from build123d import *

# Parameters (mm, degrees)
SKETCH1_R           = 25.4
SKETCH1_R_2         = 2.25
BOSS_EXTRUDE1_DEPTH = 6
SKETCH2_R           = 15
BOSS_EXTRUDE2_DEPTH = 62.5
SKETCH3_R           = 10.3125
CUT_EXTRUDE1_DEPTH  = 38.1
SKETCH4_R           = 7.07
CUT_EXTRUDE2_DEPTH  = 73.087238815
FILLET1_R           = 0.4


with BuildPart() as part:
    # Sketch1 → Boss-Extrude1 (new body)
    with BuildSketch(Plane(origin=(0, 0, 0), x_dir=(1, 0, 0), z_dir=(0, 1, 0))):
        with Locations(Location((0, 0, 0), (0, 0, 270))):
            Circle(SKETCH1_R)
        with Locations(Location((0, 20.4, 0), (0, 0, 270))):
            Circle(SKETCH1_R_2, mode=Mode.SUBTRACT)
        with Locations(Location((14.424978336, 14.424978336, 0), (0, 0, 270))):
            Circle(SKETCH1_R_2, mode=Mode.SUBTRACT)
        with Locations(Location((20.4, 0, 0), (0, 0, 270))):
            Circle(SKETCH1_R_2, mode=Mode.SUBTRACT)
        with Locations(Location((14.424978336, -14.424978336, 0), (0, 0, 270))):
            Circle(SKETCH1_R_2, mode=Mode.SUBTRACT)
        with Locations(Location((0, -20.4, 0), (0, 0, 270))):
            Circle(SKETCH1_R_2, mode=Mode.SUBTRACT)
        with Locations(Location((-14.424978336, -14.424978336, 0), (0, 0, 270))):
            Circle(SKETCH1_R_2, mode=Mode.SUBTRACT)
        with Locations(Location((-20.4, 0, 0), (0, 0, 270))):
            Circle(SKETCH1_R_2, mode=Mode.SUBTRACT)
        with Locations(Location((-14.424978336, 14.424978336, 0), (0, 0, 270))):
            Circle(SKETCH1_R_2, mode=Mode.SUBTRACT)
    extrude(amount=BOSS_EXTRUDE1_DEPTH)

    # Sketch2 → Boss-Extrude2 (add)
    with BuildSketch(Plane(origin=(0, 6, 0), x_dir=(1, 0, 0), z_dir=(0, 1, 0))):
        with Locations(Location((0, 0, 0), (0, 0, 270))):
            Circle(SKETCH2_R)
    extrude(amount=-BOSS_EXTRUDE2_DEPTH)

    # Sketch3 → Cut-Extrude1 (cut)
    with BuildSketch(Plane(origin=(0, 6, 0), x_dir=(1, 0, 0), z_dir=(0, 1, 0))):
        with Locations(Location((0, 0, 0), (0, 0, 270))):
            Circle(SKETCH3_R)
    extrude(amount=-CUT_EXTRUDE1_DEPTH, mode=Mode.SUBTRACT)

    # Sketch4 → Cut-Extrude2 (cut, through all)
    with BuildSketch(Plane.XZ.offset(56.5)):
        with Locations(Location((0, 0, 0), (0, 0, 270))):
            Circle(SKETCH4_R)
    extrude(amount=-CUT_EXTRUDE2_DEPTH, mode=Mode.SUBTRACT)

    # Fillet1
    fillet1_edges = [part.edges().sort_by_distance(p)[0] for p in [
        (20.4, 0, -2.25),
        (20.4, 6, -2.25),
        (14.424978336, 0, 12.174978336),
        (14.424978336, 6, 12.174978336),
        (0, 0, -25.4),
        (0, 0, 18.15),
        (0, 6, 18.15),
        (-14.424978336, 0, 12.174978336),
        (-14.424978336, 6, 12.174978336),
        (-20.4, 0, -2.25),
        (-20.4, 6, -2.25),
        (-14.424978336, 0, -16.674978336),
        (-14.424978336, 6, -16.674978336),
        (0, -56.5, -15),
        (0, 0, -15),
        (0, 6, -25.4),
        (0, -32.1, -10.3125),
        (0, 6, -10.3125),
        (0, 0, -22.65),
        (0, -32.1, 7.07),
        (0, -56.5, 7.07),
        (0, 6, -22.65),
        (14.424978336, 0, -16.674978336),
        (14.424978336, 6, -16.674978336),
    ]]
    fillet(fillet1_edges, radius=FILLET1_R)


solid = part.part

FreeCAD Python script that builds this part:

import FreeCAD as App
import Part
import Sketcher


def edges_at(feature, points):
    """Names of the edges that pass closest to the given points."""
    edges = feature.Shape.Edges
    near = lambda p: min(range(len(edges)), key=lambda i: edges[i].distToShape(Part.Vertex(*p))[0])
    return sorted({f"Edge{near(p) + 1}" for p in points})

doc = App.newDocument("Part")
params = doc.addObject("Spreadsheet::Sheet", "Params")
for row, (alias, value) in enumerate([
    ("sketch1_diameter", "50.8 mm"),
    ("sketch1_diameter2", "4.5 mm"),
    ("pad1_length", "6 mm"),
    ("sketch2_diameter", "30 mm"),
    ("pad2_length", "62.5 mm"),
    ("pocket1_length", "38.1 mm"),
    ("sketch4_diameter", "14.14 mm"),
    ("fillet_radius", "0.4 mm"),
], start=1):
    params.set(f"A{row}", alias)
    params.set(f"B{row}", "=" + value)
    params.setAlias(f"B{row}", alias)

body = doc.addObject("PartDesign::Body", "Body")

# Sketch on XZ plane
sketch1 = doc.addObject("Sketcher::SketchObject", "Sketch")
body.addObject(sketch1)
sketch1.AttachmentSupport = (doc.XZ_Plane, [""])
sketch1.MapMode = "FlatFace"
sketch1.addGeometry([
    Part.Circle(App.Vector(0, 0, 0), App.Vector(0, 0, 1), 25.4),  # 0
    Part.Circle(App.Vector(-14.4, -14.4, 0), App.Vector(0, 0, 1), 2.2),  # 1
    Part.Circle(App.Vector(0, -20.4, 0), App.Vector(0, 0, 1), 2.2),  # 2
    Part.Circle(App.Vector(-20.4, 0, 0), App.Vector(0, 0, 1), 2.2),  # 3
    Part.Circle(App.Vector(-14.4, 14.4, 0), App.Vector(0, 0, 1), 2.2),  # 4
    Part.Circle(App.Vector(14.4, -14.4, 0), App.Vector(0, 0, 1), 2.2),  # 5
    Part.Circle(App.Vector(20.4, 0, 0), App.Vector(0, 0, 1), 2.2),  # 6
    Part.Circle(App.Vector(0, 20.4, 0), App.Vector(0, 0, 1), 2.2),  # 7
    Part.Circle(App.Vector(14.4, 14.4, 0), App.Vector(0, 0, 1), 2.2),  # 8
], False)
sketch1.addConstraint([
    Sketcher.Constraint("Coincident", 0, 3, -1, 1),
    Sketcher.Constraint("Equal", 1, 2),
    Sketcher.Constraint("Equal", 2, 3),
    Sketcher.Constraint("Equal", 3, 4),
    Sketcher.Constraint("Equal", 4, 5),
    Sketcher.Constraint("Equal", 5, 6),
    Sketcher.Constraint("Equal", 6, 7),
    Sketcher.Constraint("Equal", 7, 8),
    Sketcher.Constraint("Symmetric", 4, 3, 5, 3, -1, 1),
    Sketcher.Constraint("Symmetric", 3, 3, 6, 3, -1, 1),
    Sketcher.Constraint("Symmetric", 2, 3, 7, 3, -1, 1),
    Sketcher.Constraint("Symmetric", 1, 3, 8, 3, -1, 1),
    Sketcher.Constraint("Symmetric", 1, 3, 5, 3, -2),
    Sketcher.Constraint("PointOnObject", 2, 3, -2),
    Sketcher.Constraint("PointOnObject", 3, 3, -1),
    Sketcher.Constraint("Diameter", 0, 50.8),
    Sketcher.Constraint("Diameter", 1, 4.5),
    Sketcher.Constraint("DistanceY", 2, 3, -1, 1, 20.4),
    Sketcher.Constraint("DistanceX", 3, 3, -1, 1, 20.4),
    Sketcher.Constraint("DistanceX", 1, 3, -1, 1, 14.424978),
    Sketcher.Constraint("DistanceY", 1, 3, -1, 1, 14.424978),
])
sketch1.setExpression("Constraints[15]", "Params.sketch1_diameter")
sketch1.setExpression("Constraints[16]", "Params.sketch1_diameter2")
pad1 = doc.addObject("PartDesign::Pad", "Pad")
body.addObject(pad1)
pad1.Profile = sketch1
pad1.setExpression("Length", "Params.pad1_length")
pad1.Reversed = True

# Sketch on XZ plane
sketch2 = doc.addObject("Sketcher::SketchObject", "Sketch001")
body.addObject(sketch2)
sketch2.AttachmentSupport = (doc.XZ_Plane, [""])
sketch2.MapMode = "FlatFace"
sketch2.AttachmentOffset = App.Placement(App.Vector(0, 0, -6), App.Rotation())
sketch2.addGeometry(Part.Circle(App.Vector(0, 0, 0), App.Vector(0, 0, 1), 15), False)
sketch2.addConstraint([
    Sketcher.Constraint("Coincident", 0, 3, -1, 1),
    Sketcher.Constraint("Diameter", 0, 30.0),
])
sketch2.setExpression("Constraints[1]", "Params.sketch2_diameter")
pad2 = doc.addObject("PartDesign::Pad", "Pad001")
body.addObject(pad2)
pad2.Profile = sketch2
pad2.setExpression("Length", "Params.pad2_length")

# Sketch on XZ plane
sketch3 = doc.addObject("Sketcher::SketchObject", "Sketch002")
body.addObject(sketch3)
sketch3.AttachmentSupport = (doc.XZ_Plane, [""])
sketch3.MapMode = "FlatFace"
sketch3.AttachmentOffset = App.Placement(App.Vector(0, 0, -6), App.Rotation())
sketch3.addGeometry(Part.Circle(App.Vector(0, 0, 0), App.Vector(0, 0, 1), 10), False)
sketch3.addConstraint([
    Sketcher.Constraint("Coincident", 0, 3, -1, 1),
    Sketcher.Constraint("Diameter", 0, 20.625),
])
pocket1 = doc.addObject("PartDesign::Pocket", "Pocket")
body.addObject(pocket1)
pocket1.Profile = sketch3
pocket1.setExpression("Length", "Params.pocket1_length")
pocket1.Reversed = True

# Sketch on XZ plane
sketch4 = doc.addObject("Sketcher::SketchObject", "Sketch003")
body.addObject(sketch4)
sketch4.AttachmentSupport = (doc.XZ_Plane, [""])
sketch4.MapMode = "FlatFace"
sketch4.AttachmentOffset = App.Placement(App.Vector(0, 0, 56.5), App.Rotation())
sketch4.addGeometry(Part.Circle(App.Vector(0, 0, 0), App.Vector(0, 0, 1), 7), False)
sketch4.addConstraint([
    Sketcher.Constraint("Coincident", 0, 3, -1, 1),
    Sketcher.Constraint("Diameter", 0, 14.14),
])
sketch4.setExpression("Constraints[1]", "Params.sketch4_diameter")
pocket2 = doc.addObject("PartDesign::Pocket", "Pocket001")
body.addObject(pocket2)
pocket2.Profile = sketch4
pocket2.Type = "ThroughAll"
doc.recompute()

fillet = doc.addObject("PartDesign::Fillet", "Fillet")
body.addObject(fillet)
fillet.Base = (pocket2, edges_at(pocket2, [
    (20.4, 0, -2.25),
    (20.4, 6, -2.25),
    (14.425, 0, 12.175),
    (14.425, 6, 12.175),
    (0, 0, -25.4),
    (0, 0, 18.15),
    (0, 6, 18.15),
    (-14.425, 0, 12.175),
    (-14.425, 6, 12.175),
    (-20.4, 0, -2.25),
    (-20.4, 6, -2.25),
    (-14.425, 0, -16.675),
    (-14.425, 6, -16.675),
    (0, -56.5, -15),
    (0, 0, -15),
    (0, 6, -25.4),
    (0, -32.1, -10.312),
    (0, 6, -10.312),
    (0, 0, -22.65),
    (0, -32.1, 7.07),
    (0, -56.5, 7.07),
    (0, 6, -22.65),
    (14.425, 0, -16.675),
    (14.425, 6, -16.675),
]))
fillet.setExpression("Radius", "Params.fillet_radius")

doc.recompute()
